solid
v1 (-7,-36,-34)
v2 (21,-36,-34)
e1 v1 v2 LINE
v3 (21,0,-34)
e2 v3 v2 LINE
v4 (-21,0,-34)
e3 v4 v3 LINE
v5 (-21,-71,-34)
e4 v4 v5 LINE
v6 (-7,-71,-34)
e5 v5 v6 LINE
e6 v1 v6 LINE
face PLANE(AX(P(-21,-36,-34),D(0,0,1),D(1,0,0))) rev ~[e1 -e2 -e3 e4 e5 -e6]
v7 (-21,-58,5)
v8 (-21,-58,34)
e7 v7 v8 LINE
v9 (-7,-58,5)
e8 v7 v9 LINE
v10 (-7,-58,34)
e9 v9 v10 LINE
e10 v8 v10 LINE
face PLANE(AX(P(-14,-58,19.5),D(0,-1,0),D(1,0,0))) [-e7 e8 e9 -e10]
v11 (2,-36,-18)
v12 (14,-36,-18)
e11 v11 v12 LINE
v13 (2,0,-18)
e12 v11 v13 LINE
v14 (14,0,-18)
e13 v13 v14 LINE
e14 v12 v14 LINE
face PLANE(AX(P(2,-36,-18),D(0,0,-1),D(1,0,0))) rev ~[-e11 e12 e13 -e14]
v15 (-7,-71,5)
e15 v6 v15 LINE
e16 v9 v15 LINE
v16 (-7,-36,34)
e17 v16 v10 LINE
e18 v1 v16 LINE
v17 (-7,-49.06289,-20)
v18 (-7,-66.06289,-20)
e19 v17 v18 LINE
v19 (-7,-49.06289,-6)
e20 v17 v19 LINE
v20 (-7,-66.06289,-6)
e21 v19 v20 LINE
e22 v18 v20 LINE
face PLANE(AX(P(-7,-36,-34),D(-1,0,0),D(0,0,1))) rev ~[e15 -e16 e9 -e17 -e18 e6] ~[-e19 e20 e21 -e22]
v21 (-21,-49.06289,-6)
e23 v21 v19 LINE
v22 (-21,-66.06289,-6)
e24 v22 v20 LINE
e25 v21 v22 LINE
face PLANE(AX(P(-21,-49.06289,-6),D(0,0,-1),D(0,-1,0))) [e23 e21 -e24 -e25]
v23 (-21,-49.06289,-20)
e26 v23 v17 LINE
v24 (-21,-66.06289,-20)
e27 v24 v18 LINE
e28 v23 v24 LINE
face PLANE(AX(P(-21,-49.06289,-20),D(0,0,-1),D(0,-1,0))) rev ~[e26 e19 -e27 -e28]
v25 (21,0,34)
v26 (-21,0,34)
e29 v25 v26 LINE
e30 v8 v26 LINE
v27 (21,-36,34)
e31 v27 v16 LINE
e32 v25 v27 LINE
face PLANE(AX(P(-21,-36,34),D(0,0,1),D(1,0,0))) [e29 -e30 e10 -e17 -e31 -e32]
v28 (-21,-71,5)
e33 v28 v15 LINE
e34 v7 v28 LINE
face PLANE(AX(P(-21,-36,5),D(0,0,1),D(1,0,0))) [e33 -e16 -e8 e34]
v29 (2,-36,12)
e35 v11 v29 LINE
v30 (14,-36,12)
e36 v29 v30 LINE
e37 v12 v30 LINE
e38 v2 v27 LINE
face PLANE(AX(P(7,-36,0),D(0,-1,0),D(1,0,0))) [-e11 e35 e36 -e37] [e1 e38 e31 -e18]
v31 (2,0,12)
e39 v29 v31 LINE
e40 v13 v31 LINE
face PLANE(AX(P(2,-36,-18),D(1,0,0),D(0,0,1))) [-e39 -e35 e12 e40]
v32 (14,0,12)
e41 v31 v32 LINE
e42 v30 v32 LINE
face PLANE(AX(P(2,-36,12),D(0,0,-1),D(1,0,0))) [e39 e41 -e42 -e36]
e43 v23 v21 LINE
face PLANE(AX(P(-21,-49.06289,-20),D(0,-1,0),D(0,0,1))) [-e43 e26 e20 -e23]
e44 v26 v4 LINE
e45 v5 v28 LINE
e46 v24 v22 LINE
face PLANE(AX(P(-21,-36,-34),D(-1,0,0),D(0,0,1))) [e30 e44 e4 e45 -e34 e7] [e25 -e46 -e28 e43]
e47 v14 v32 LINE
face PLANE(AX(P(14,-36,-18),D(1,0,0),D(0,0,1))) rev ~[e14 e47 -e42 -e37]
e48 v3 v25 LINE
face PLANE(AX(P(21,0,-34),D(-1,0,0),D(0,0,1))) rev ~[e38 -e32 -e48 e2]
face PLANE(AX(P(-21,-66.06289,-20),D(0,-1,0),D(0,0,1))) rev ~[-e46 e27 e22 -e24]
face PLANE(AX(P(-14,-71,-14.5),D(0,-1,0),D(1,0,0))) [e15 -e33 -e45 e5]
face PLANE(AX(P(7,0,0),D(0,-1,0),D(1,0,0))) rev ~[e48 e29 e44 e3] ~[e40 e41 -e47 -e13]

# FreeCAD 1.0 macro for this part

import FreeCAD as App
import Part
import Sketcher
from FreeCAD import Vector

doc = App.newDocument("Part")
body = doc.addObject("PartDesign::Body", "Body")

# Sketch on XZ plane
sketch1 = body.newObject("Sketcher::SketchObject", "Sketch")
sketch1.AttachmentSupport = (doc.getObject("XZ_Plane"), [""])
sketch1.MapMode = "FlatFace"
sketch1.addGeometry(Part.LineSegment(Vector(21, -34, 0), Vector(21, 34, 0)), False)
sketch1.addGeometry(Part.LineSegment(Vector(21, 34, 0), Vector(-21, 34, 0)), False)
sketch1.addGeometry(Part.LineSegment(Vector(-21, 34, 0), Vector(-21, -34, 0)), False)
sketch1.addGeometry(Part.LineSegment(Vector(-21, -34, 0), Vector(21, -34, 0)), False)
sketch1.addConstraint(Sketcher.Constraint("Coincident", 0, 2, 1, 1))
sketch1.addConstraint(Sketcher.Constraint("Coincident", 1, 2, 2, 1))
sketch1.addConstraint(Sketcher.Constraint("Coincident", 2, 2, 3, 1))
sketch1.addConstraint(Sketcher.Constraint("Coincident", 3, 2, 0, 1))
sketch1.addConstraint(Sketcher.Constraint("Vertical", 0))
sketch1.addConstraint(Sketcher.Constraint("Horizontal", 1))
sketch1.addConstraint(Sketcher.Constraint("Vertical", 2))
sketch1.addConstraint(Sketcher.Constraint("Horizontal", 3))
sketch1.addConstraint(Sketcher.Constraint("Symmetric", 0, 2, 2, 2, -1, 1))
sketch1.addConstraint(Sketcher.Constraint("DistanceX", 1, 2, 1, 1, 42.0))
sketch1.addConstraint(Sketcher.Constraint("DistanceY", 0, 1, 0, 2, 68.0))
pad1 = body.newObject("PartDesign::Pad", "Pad")
pad1.Profile = sketch1
pad1.Length = 36

# Sketch on XZ plane
sketch2 = body.newObject("Sketcher::SketchObject", "Sketch001")
sketch2.AttachmentSupport = (doc.getObject("XZ_Plane"), [""])
sketch2.MapMode = "FlatFace"
sketch2.AttachmentOffset = App.Placement(Vector(0, 0, 36), App.Rotation())
sketch2.addGeometry(Part.LineSegment(Vector(-21, 34, 0), Vector(-21, 5, 0)), False)
sketch2.addGeometry(Part.LineSegment(Vector(-21, 5, 0), Vector(-7, 5, 0)), False)
sketch2.addGeometry(Part.LineSegment(Vector(-7, 5, 0), Vector(-7, 34, 0)), False)
sketch2.addGeometry(Part.LineSegment(Vector(-7, 34, 0), Vector(-21, 34, 0)), False)
sketch2.addConstraint(Sketcher.Constraint("Coincident", 0, 2, 1, 1))
sketch2.addConstraint(Sketcher.Constraint("Coincident", 1, 2, 2, 1))
sketch2.addConstraint(Sketcher.Constraint("Coincident", 2, 2, 3, 1))
sketch2.addConstraint(Sketcher.Constraint("Coincident", 3, 2, 0, 1))
sketch2.addConstraint(Sketcher.Constraint("Vertical", 0))
sketch2.addConstraint(Sketcher.Constraint("Horizontal", 1))
sketch2.addConstraint(Sketcher.Constraint("Vertical", 2))
sketch2.addConstraint(Sketcher.Constraint("Horizontal", 3))
sketch2.addConstraint(Sketcher.Constraint("DistanceX", 1, 1, 1, 2, 14.0))
sketch2.addConstraint(Sketcher.Constraint("DistanceY", 0, 2, 0, 1, 29.0))
sketch2.addConstraint(Sketcher.Constraint("DistanceX", 0, 2, -1, 1, 21.0))
sketch2.addConstraint(Sketcher.Constraint("DistanceY", -1, 1, 0, 2, 5.0))
pad2 = body.newObject("PartDesign::Pad", "Pad001")
pad2.Profile = sketch2
pad2.Length = 22

# Sketch on XZ plane
sketch3 = body.newObject("Sketcher::SketchObject", "Sketch002")
sketch3.AttachmentSupport = (doc.getObject("XZ_Plane"), [""])
sketch3.MapMode = "FlatFace"
sketch3.AttachmentOffset = App.Placement(Vector(0, 0, 36), App.Rotation())
sketch3.addGeometry(Part.LineSegment(Vector(-21, 5, 0), Vector(-21, -34, 0)), False)
sketch3.addGeometry(Part.LineSegment(Vector(-21, -34, 0), Vector(-7, -34, 0)), False)
sketch3.addGeometry(Part.LineSegment(Vector(-7, -34, 0), Vector(-7, 5, 0)), False)
sketch3.addGeometry(Part.LineSegment(Vector(-7, 5, 0), Vector(-21, 5, 0)), False)
sketch3.addConstraint(Sketcher.Constraint("Coincident", 0, 2, 1, 1))
sketch3.addConstraint(Sketcher.Constraint("Coincident", 1, 2, 2, 1))
sketch3.addConstraint(Sketcher.Constraint("Coincident", 2, 2, 3, 1))
sketch3.addConstraint(Sketcher.Constraint("Coincident", 3, 2, 0, 1))
sketch3.addConstraint(Sketcher.Constraint("Vertical", 0))
sketch3.addConstraint(Sketcher.Constraint("Horizontal", 1))
sketch3.addConstraint(Sketcher.Constraint("Vertical", 2))
sketch3.addConstraint(Sketcher.Constraint("Horizontal", 3))
sketch3.addConstraint(Sketcher.Constraint("DistanceX", 1, 1, 1, 2, 14.0))
sketch3.addConstraint(Sketcher.Constraint("DistanceY", 0, 2, 0, 1, 39.0))
sketch3.addConstraint(Sketcher.Constraint("DistanceX", 0, 2, -1, 1, 21.0))
sketch3.addConstraint(Sketcher.Constraint("DistanceY", 0, 2, -1, 1, 34.0))
pad3 = body.newObject("PartDesign::Pad", "Pad002")
pad3.Profile = sketch3
pad3.Length = 35

# Sketch on YZ plane
sketch4 = body.newObject("Sketcher::SketchObject", "Sketch003")
sketch4.AttachmentSupport = (doc.getObject("YZ_Plane"), [""])
sketch4.MapMode = "FlatFace"
sketch4.AttachmentOffset = App.Placement(Vector(0, 0, -21), App.Rotation())
sketch4.addGeometry(Part.LineSegment(Vector(-49, -6, 0), Vector(-49, -20, 0)), False)
sketch4.addGeometry(Part.LineSegment(Vector(-49, -20, 0), Vector(-66, -20, 0)), False)
sketch4.addGeometry(Part.LineSegment(Vector(-66, -20, 0), Vector(-66, -6, 0)), False)
sketch4.addGeometry(Part.LineSegment(Vector(-66, -6, 0), Vector(-49, -6, 0)), False)
sketch4.addConstraint(Sketcher.Constraint("Coincident", 0, 2, 1, 1))
sketch4.addConstraint(Sketcher.Constraint("Coincident", 1, 2, 2, 1))
sketch4.addConstraint(Sketcher.Constraint("Coincident", 2, 2, 3, 1))
sketch4.addConstraint(Sketcher.Constraint("Coincident", 3, 2, 0, 1))
sketch4.addConstraint(Sketcher.Constraint("Vertical", 0))
sketch4.addConstraint(Sketcher.Constraint("Horizontal", 1))
sketch4.addConstraint(Sketcher.Constraint("Vertical", 2))
sketch4.addConstraint(Sketcher.Constraint("Horizontal", 3))
sketch4.addConstraint(Sketcher.Constraint("DistanceX", 1, 2, 1, 1, 17.0))
sketch4.addConstraint(Sketcher.Constraint("DistanceY", 0, 2, 0, 1, 14.0))
sketch4.addConstraint(Sketcher.Constraint("DistanceY", 0, 2, -1, 1, 20.0))
sketch4.addConstraint(Sketcher.Constraint("DistanceX", 0, 2, -1, 1, 49.06289))
pocket1 = body.newObject("PartDesign::Pocket", "Pocket")
pocket1.Profile = sketch4
pocket1.Length = 25
pocket1.Reversed = True

# Sketch on XZ plane
sketch5 = body.newObject("Sketcher::SketchObject", "Sketch004")
sketch5.AttachmentSupport = (doc.getObject("XZ_Plane"), [""])
sketch5.MapMode = "FlatFace"
sketch5.AttachmentOffset = App.Placement(Vector(0, 0, 36), App.Rotation())
sketch5.addGeometry(Part.LineSegment(Vector(2, 12, 0), Vector(2, -18, 0)), False)
sketch5.addGeometry(Part.LineSegment(Vector(2, -18, 0), Vector(14, -18, 0)), False)
sketch5.addGeometry(Part.LineSegment(Vector(14, -18, 0), Vector(14, 12, 0)), False)
sketch5.addGeometry(Part.LineSegment(Vector(14, 12, 0), Vector(2, 12, 0)), False)
sketch5.addConstraint(Sketcher.Constraint("Coincident", 0, 2, 1, 1))
sketch5.addConstraint(Sketcher.Constraint("Coincident", 1, 2, 2, 1))
sketch5.addConstraint(Sketcher.Constraint("Coincident", 2, 2, 3, 1))
sketch5.addConstraint(Sketcher.Constraint("Coincident", 3, 2, 0, 1))
sketch5.addConstraint(Sketcher.Constraint("Vertical", 0))
sketch5.addConstraint(Sketcher.Constraint("Horizontal", 1))
sketch5.addConstraint(Sketcher.Constraint("Vertical", 2))
sketch5.addConstraint(Sketcher.Constraint("Horizontal", 3))
sketch5.addConstraint(Sketcher.Constraint("DistanceX", 1, 1, 1, 2, 12.0))
sketch5.addConstraint(Sketcher.Constraint("DistanceY", 0, 2, 0, 1, 30.0))
sketch5.addConstraint(Sketcher.Constraint("DistanceX", -1, 1, 0, 2, 2.0))
sketch5.addConstraint(Sketcher.Constraint("DistanceY", 0, 2, -1, 1, 18.0))
pocket2 = body.newObject("PartDesign::Pocket", "Pocket001")
pocket2.Profile = sketch5
pocket2.Length = 40

doc.recompute()
